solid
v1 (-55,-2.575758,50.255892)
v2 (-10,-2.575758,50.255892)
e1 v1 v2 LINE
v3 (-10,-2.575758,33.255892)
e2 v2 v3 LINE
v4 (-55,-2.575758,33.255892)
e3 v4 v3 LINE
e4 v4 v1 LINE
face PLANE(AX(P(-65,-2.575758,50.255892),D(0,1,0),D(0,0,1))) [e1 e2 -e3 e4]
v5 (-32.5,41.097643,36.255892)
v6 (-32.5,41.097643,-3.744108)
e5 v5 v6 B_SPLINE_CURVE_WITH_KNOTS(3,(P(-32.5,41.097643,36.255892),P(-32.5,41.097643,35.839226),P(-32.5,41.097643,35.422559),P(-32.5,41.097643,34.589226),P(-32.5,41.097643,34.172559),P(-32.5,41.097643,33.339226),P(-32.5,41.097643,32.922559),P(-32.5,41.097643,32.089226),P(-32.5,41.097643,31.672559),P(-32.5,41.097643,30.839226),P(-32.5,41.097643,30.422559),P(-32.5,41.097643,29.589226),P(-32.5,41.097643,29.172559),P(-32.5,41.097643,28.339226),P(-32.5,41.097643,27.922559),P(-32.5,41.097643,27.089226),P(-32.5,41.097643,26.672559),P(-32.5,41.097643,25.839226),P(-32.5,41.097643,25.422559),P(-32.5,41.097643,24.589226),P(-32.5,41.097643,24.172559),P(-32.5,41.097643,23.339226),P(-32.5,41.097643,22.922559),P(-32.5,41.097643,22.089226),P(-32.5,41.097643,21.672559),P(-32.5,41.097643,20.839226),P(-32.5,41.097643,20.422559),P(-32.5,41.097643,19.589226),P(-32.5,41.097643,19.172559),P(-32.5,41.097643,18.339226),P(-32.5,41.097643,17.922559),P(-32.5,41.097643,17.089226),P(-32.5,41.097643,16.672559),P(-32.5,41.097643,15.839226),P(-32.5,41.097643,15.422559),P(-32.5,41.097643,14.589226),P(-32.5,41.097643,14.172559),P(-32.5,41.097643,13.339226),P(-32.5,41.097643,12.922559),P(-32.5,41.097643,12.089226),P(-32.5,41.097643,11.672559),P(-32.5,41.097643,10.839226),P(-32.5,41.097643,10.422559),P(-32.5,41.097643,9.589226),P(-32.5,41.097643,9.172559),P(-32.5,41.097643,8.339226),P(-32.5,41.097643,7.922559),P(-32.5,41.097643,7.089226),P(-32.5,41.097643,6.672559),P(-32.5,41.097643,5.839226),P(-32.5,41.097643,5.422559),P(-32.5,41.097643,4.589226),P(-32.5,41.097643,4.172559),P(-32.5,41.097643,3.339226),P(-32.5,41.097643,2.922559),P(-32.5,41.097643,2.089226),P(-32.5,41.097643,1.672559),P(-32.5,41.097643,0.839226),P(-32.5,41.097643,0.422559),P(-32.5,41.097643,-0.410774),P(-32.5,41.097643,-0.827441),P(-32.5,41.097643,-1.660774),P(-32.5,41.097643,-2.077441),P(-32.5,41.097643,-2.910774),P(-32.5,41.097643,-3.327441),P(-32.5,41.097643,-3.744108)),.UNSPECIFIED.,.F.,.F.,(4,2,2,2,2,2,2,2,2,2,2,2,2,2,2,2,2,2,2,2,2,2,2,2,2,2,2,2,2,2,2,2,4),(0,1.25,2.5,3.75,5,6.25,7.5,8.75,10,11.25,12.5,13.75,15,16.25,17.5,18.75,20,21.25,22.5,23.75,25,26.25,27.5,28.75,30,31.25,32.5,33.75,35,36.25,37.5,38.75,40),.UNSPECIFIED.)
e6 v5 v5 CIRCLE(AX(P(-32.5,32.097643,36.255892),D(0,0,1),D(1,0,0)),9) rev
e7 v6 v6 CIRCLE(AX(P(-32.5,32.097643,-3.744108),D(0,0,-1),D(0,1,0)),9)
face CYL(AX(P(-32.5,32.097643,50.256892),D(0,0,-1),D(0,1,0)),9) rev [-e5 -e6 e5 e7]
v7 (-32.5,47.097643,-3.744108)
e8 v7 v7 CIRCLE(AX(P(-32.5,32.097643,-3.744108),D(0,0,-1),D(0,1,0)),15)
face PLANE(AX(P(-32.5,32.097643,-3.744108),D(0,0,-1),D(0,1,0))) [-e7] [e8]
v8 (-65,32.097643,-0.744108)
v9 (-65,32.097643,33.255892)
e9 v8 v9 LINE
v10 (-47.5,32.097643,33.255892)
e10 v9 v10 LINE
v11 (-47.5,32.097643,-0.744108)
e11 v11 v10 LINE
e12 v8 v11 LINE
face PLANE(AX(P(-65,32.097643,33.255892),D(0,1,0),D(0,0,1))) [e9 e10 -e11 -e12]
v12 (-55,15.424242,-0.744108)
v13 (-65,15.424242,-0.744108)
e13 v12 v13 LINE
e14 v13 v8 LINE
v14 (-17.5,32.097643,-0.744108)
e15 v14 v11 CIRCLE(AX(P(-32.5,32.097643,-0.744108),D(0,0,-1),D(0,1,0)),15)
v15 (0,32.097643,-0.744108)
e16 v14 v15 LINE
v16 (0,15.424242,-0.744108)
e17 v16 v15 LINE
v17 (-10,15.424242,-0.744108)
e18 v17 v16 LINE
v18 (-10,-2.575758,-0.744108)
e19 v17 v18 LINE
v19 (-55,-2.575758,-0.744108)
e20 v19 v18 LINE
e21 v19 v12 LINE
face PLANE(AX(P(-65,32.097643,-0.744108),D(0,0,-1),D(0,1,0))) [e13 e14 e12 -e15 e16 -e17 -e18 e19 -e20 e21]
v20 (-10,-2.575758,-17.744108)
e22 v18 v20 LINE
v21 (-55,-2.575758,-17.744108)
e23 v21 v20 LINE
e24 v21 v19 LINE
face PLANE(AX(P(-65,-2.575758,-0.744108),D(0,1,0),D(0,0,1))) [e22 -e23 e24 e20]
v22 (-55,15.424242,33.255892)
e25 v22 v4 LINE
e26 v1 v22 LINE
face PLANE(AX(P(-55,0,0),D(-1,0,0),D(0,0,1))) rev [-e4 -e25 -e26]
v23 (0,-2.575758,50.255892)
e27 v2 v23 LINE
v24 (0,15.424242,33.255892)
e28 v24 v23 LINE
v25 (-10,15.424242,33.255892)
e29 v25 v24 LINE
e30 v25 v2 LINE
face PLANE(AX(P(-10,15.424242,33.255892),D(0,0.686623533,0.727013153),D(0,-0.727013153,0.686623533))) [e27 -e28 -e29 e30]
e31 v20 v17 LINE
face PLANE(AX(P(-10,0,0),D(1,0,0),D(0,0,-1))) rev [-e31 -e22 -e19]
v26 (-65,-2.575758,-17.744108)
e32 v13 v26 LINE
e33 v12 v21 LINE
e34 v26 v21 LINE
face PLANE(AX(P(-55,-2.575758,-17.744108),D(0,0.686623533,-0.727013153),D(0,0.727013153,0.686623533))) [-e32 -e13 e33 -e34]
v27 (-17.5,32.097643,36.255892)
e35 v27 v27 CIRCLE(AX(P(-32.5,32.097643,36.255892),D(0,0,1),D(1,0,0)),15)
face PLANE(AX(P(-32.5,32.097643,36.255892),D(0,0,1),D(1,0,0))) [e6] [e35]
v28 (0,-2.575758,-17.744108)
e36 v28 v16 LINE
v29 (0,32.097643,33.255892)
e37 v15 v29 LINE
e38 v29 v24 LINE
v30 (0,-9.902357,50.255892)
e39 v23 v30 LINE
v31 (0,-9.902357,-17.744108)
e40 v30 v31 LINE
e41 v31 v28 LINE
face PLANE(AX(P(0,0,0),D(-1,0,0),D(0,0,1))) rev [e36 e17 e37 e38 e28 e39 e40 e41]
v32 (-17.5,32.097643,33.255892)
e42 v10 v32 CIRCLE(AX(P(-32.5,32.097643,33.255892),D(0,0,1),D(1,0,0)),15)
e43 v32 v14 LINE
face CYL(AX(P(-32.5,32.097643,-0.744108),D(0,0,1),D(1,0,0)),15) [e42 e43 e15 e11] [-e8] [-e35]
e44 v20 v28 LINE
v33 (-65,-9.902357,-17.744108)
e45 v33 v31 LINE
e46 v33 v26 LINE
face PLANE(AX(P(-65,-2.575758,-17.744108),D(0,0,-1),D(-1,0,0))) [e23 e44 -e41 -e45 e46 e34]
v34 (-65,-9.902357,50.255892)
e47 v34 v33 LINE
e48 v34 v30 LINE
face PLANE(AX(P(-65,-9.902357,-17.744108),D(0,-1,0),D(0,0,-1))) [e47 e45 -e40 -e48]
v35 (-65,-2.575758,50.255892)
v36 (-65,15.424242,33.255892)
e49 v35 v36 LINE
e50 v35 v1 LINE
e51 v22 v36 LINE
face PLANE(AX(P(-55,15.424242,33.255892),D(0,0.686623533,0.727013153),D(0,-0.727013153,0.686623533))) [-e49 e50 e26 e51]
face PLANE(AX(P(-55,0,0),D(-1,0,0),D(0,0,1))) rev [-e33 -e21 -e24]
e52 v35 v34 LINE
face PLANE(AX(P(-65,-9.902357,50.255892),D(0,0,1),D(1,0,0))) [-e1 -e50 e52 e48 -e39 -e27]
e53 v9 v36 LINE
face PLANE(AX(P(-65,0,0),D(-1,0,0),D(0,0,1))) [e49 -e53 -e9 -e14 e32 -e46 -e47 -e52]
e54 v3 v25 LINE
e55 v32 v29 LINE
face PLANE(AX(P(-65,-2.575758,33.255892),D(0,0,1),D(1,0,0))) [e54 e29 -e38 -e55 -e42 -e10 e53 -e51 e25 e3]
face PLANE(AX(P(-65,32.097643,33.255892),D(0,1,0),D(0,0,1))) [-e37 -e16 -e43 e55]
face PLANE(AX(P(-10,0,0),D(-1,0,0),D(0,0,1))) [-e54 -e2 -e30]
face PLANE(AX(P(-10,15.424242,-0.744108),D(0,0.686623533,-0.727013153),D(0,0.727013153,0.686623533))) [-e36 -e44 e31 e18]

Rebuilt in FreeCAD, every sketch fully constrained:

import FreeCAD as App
import Part
import Sketcher
from FreeCAD import Vector

doc = App.newDocument("Part")
params = doc.addObject("Spreadsheet::Sheet", "Params")
for row, (alias, value) in enumerate([
    ("sketch1_height", "68 mm"),
    ("sketch1_height2", "17 mm"),
    ("pad1_length", "65 mm"),
    ("sketch2_width", "18 mm"),
    ("sketch2_height", "17 mm"),
    ("pad2_length", "10 mm"),
    ("sketch3_width", "18 mm"),
    ("sketch3_height", "17 mm"),
    ("pad3_length", "10 mm"),
    ("sketch4_width", "18 mm"),
    ("sketch4_height", "17 mm"),
    ("pad4_length", "10 mm"),
    ("sketch5_width", "18 mm"),
    ("sketch5_height", "17 mm"),
    ("pad5_length", "10 mm"),
    ("sketch6_diameter", "30 mm"),
    ("pad6_length", "34 mm"),
    ("sketch7_diameter", "30 mm"),
    ("pad7_length", "3 mm"),
    ("sketch8_diameter", "30 mm"),
    ("pad8_length", "3 mm"),
    ("sketch9_diameter", "18 mm"),
], start=1):
    params.set(f"A{row}", alias)
    params.set(f"B{row}", "=" + value)
    params.setAlias(f"B{row}", alias)

body = doc.addObject("PartDesign::Body", "Body")

# Sketch on YZ plane
sketch1 = doc.addObject("Sketcher::SketchObject", "Sketch")
body.addObject(sketch1)
sketch1.AttachmentSupport = (doc.YZ_Plane, [""])
sketch1.MapMode = "FlatFace"
sketch1.addGeometry(Part.LineSegment(Vector(-3, 50, 0), Vector(-10, 50, 0)), False)
sketch1.addGeometry(Part.LineSegment(Vector(-10, 50, 0), Vector(-10, -18, 0)), False)
sketch1.addGeometry(Part.LineSegment(Vector(-10, -18, 0), Vector(-3, -18, 0)), False)
sketch1.addGeometry(Part.LineSegment(Vector(-3, -18, 0), Vector(-3, -1, 0)), False)
sketch1.addGeometry(Part.LineSegment(Vector(-3, -1, 0), Vector(32, -1, 0)), False)
sketch1.addGeometry(Part.LineSegment(Vector(32, -1, 0), Vector(32, 33, 0)), False)
sketch1.addGeometry(Part.LineSegment(Vector(32, 33, 0), Vector(-3, 33, 0)), False)
sketch1.addGeometry(Part.LineSegment(Vector(-3, 33, 0), Vector(-3, 50, 0)), False)
sketch1.addConstraint(Sketcher.Constraint("Coincident", 0, 2, 1, 1))
sketch1.addConstraint(Sketcher.Constraint("Coincident", 1, 2, 2, 1))
sketch1.addConstraint(Sketcher.Constraint("Coincident", 2, 2, 3, 1))
sketch1.addConstraint(Sketcher.Constraint("Coincident", 3, 2, 4, 1))
sketch1.addConstraint(Sketcher.Constraint("Coincident", 4, 2, 5, 1))
sketch1.addConstraint(Sketcher.Constraint("Coincident", 5, 2, 6, 1))
sketch1.addConstraint(Sketcher.Constraint("Coincident", 6, 2, 7, 1))
sketch1.addConstraint(Sketcher.Constraint("Coincident", 7, 2, 0, 1))
sketch1.addConstraint(Sketcher.Constraint("Horizontal", 0))
sketch1.addConstraint(Sketcher.Constraint("Vertical", 1))
sketch1.addConstraint(Sketcher.Constraint("Horizontal", 2))
sketch1.addConstraint(Sketcher.Constraint("Vertical", 3))
sketch1.addConstraint(Sketcher.Constraint("Horizontal", 4))
sketch1.addConstraint(Sketcher.Constraint("Vertical", 5))
sketch1.addConstraint(Sketcher.Constraint("Horizontal", 6))
sketch1.addConstraint(Sketcher.Constraint("Vertical", 7))
sketch1.addConstraint(Sketcher.Constraint("Vertical", 3, 2, 6, 2))
sketch1.addConstraint(Sketcher.Constraint("Equal", 3, 7))
sketch1.addConstraint(Sketcher.Constraint("DistanceY", 1, 2, 1, 1, 68.0))
sketch1.addConstraint(Sketcher.Constraint("DistanceY", 3, 1, 3, 2, 17.0))
sketch1.addConstraint(Sketcher.Constraint("DistanceX", 1, 2, 4, 2, 42.0))
sketch1.addConstraint(Sketcher.Constraint("DistanceX", 0, 2, 0, 1, 7.326599))
sketch1.addConstraint(Sketcher.Constraint("DistanceX", 0, 2, -1, 1, 9.902357))
sketch1.addConstraint(Sketcher.Constraint("DistanceY", -1, 1, 0, 2, 50.255892))
sketch1.setExpression("Constraints[18]", "Params.sketch1_height")
sketch1.setExpression("Constraints[19]", "Params.sketch1_height2")
pad1 = doc.addObject("PartDesign::Pad", "Pad")
body.addObject(pad1)
pad1.Profile = sketch1
pad1.setExpression("Length", "Params.pad1_length")
pad1.Reversed = True

# Sketch on YZ plane
sketch2 = doc.addObject("Sketcher::SketchObject", "Sketch001")
body.addObject(sketch2)
sketch2.AttachmentSupport = (doc.YZ_Plane, [""])
sketch2.MapMode = "FlatFace"
sketch2.addGeometry(Part.LineSegment(Vector(15, 33, 0), Vector(-3, 50, 0)), False)
sketch2.addGeometry(Part.LineSegment(Vector(-3, 50, 0), Vector(-3, 33, 0)), False)
sketch2.addGeometry(Part.LineSegment(Vector(-3, 33, 0), Vector(15, 33, 0)), False)
sketch2.addConstraint(Sketcher.Constraint("Coincident", 0, 2, 1, 1))
sketch2.addConstraint(Sketcher.Constraint("Coincident", 1, 2, 2, 1))
sketch2.addConstraint(Sketcher.Constraint("Coincident", 2, 2, 0, 1))
sketch2.addConstraint(Sketcher.Constraint("Vertical", 1))
sketch2.addConstraint(Sketcher.Constraint("Horizontal", 2))
sketch2.addConstraint(Sketcher.Constraint("DistanceX", 2, 1, 2, 2, 18.0))
sketch2.addConstraint(Sketcher.Constraint("DistanceY", 1, 2, 1, 1, 17.0))
sketch2.addConstraint(Sketcher.Constraint("DistanceX", 0, 2, -1, 1, 2.575758))
sketch2.addConstraint(Sketcher.Constraint("DistanceY", -1, 1, 0, 2, 50.255892))
sketch2.setExpression("Constraints[5]", "Params.sketch2_width")
sketch2.setExpression("Constraints[6]", "Params.sketch2_height")
pad2 = doc.addObject("PartDesign::Pad", "Pad001")
body.addObject(pad2)
pad2.Profile = sketch2
pad2.setExpression("Length", "Params.pad2_length")
pad2.Reversed = True

# Sketch on YZ plane
sketch3 = doc.addObject("Sketcher::SketchObject", "Sketch002")
body.addObject(sketch3)
sketch3.AttachmentSupport = (doc.YZ_Plane, [""])
sketch3.MapMode = "FlatFace"
sketch3.AttachmentOffset = App.Placement(Vector(0, 0, -65), App.Rotation())
sketch3.addGeometry(Part.LineSegment(Vector(-3, 50, 0), Vector(15, 33, 0)), False)
sketch3.addGeometry(Part.LineSegment(Vector(15, 33, 0), Vector(-3, 33, 0)), False)
sketch3.addGeometry(Part.LineSegment(Vector(-3, 33, 0), Vector(-3, 50, 0)), False)
sketch3.addConstraint(Sketcher.Constraint("Coincident", 0, 2, 1, 1))
sketch3.addConstraint(Sketcher.Constraint("Coincident", 1, 2, 2, 1))
sketch3.addConstraint(Sketcher.Constraint("Coincident", 2, 2, 0, 1))
sketch3.addConstraint(Sketcher.Constraint("Horizontal", 1))
sketch3.addConstraint(Sketcher.Constraint("Vertical", 2))
sketch3.addConstraint(Sketcher.Constraint("DistanceX", 1, 2, 1, 1, 18.0))
sketch3.addConstraint(Sketcher.Constraint("DistanceY", 2, 1, 2, 2, 17.0))
sketch3.addConstraint(Sketcher.Constraint("DistanceX", -1, 1, 0, 2, 15.424242))
sketch3.addConstraint(Sketcher.Constraint("DistanceY", -1, 1, 0, 2, 33.255892))
sketch3.setExpression("Constraints[5]", "Params.sketch3_width")
sketch3.setExpression("Constraints[6]", "Params.sketch3_height")
pad3 = doc.addObject("PartDesign::Pad", "Pad002")
body.addObject(pad3)
pad3.Profile = sketch3
pad3.setExpression("Length", "Params.pad3_length")

# Sketch on YZ plane
sketch4 = doc.addObject("Sketcher::SketchObject", "Sketch003")
body.addObject(sketch4)
sketch4.AttachmentSupport = (doc.YZ_Plane, [""])
sketch4.MapMode = "FlatFace"
sketch4.AttachmentOffset = App.Placement(Vector(0, 0, -65), App.Rotation())
sketch4.addGeometry(Part.LineSegment(Vector(15, -1, 0), Vector(-3, -18, 0)), False)
sketch4.addGeometry(Part.LineSegment(Vector(-3, -18, 0), Vector(-3, -1, 0)), False)
sketch4.addGeometry(Part.LineSegment(Vector(-3, -1, 0), Vector(15, -1, 0)), False)
sketch4.addConstraint(Sketcher.Constraint("Coincident", 0, 2, 1, 1))
sketch4.addConstraint(Sketcher.Constraint("Coincident", 1, 2, 2, 1))
sketch4.addConstraint(Sketcher.Constraint("Coincident", 2, 2, 0, 1))
sketch4.addConstraint(Sketcher.Constraint("Vertical", 1))
sketch4.addConstraint(Sketcher.Constraint("Horizontal", 2))
sketch4.addConstraint(Sketcher.Constraint("DistanceX", 2, 1, 2, 2, 18.0))
sketch4.addConstraint(Sketcher.Constraint("DistanceY", 1, 1, 1, 2, 17.0))
sketch4.addConstraint(Sketcher.Constraint("DistanceX", 0, 2, -1, 1, 2.575758))
sketch4.addConstraint(Sketcher.Constraint("DistanceY", 0, 2, -1, 1, 17.744108))
sketch4.setExpression("Constraints[5]", "Params.sketch4_width")
sketch4.setExpression("Constraints[6]", "Params.sketch4_height")
pad4 = doc.addObject("PartDesign::Pad", "Pad003")
body.addObject(pad4)
pad4.Profile = sketch4
pad4.setExpression("Length", "Params.pad4_length")

# Sketch on YZ plane
sketch5 = doc.addObject("Sketcher::SketchObject", "Sketch004")
body.addObject(sketch5)
sketch5.AttachmentSupport = (doc.YZ_Plane, [""])
sketch5.MapMode = "FlatFace"
sketch5.addGeometry(Part.LineSegment(Vector(-3, -18, 0), Vector(15, -1, 0)), False)
sketch5.addGeometry(Part.LineSegment(Vector(15, -1, 0), Vector(-3, -1, 0)), False)
sketch5.addGeometry(Part.LineSegment(Vector(-3, -1, 0), Vector(-3, -18, 0)), False)
sketch5.addConstraint(Sketcher.Constraint("Coincident", 0, 2, 1, 1))
sketch5.addConstraint(Sketcher.Constraint("Coincident", 1, 2, 2, 1))
sketch5.addConstraint(Sketcher.Constraint("Coincident", 2, 2, 0, 1))
sketch5.addConstraint(Sketcher.Constraint("Horizontal", 1))
sketch5.addConstraint(Sketcher.Constraint("Vertical", 2))
sketch5.addConstraint(Sketcher.Constraint("DistanceX", 1, 2, 1, 1, 18.0))
sketch5.addConstraint(Sketcher.Constraint("DistanceY", 2, 2, 2, 1, 17.0))
sketch5.addConstraint(Sketcher.Constraint("DistanceX", -1, 1, 0, 2, 15.424242))
sketch5.addConstraint(Sketcher.Constraint("DistanceY", 0, 2, -1, 1, 0.744108))
sketch5.setExpression("Constraints[5]", "Params.sketch5_width")
sketch5.setExpression("Constraints[6]", "Params.sketch5_height")
pad5 = doc.addObject("PartDesign::Pad", "Pad004")
body.addObject(pad5)
pad5.Profile = sketch5
pad5.setExpression("Length", "Params.pad5_length")
pad5.Reversed = True

# Sketch on XY plane
sketch6 = doc.addObject("Sketcher::SketchObject", "Sketch005")
body.addObject(sketch6)
sketch6.AttachmentSupport = (doc.XY_Plane, [""])
sketch6.MapMode = "FlatFace"
sketch6.AttachmentOffset = App.Placement(Vector(0, 0, 33.255892), App.Rotation())
sketch6.addGeometry(Part.Circle(Vector(-32, 32, 0), Vector(0, 0, 1), 15), False)
sketch6.addConstraint(Sketcher.Constraint("Diameter", 0, 30.0))
sketch6.addConstraint(Sketcher.Constraint("DistanceX", 0, 3, -1, 1, 32.5))
sketch6.addConstraint(Sketcher.Constraint("DistanceY", -1, 1, 0, 3, 32.097643))
sketch6.setExpression("Constraints[0]", "Params.sketch6_diameter")
pad6 = doc.addObject("PartDesign::Pad", "Pad005")
body.addObject(pad6)
pad6.Profile = sketch6
pad6.setExpression("Length", "Params.pad6_length")
pad6.Reversed = True

# Sketch on XY plane
sketch7 = doc.addObject("Sketcher::SketchObject", "Sketch006")
body.addObject(sketch7)
sketch7.AttachmentSupport = (doc.XY_Plane, [""])
sketch7.MapMode = "FlatFace"
sketch7.AttachmentOffset = App.Placement(Vector(0, 0, 36.255892), App.Rotation())
sketch7.addGeometry(Part.Circle(Vector(-32, 32, 0), Vector(0, 0, 1), 15), False)
sketch7.addConstraint(Sketcher.Constraint("Diameter", 0, 30.0))
sketch7.addConstraint(Sketcher.Constraint("DistanceX", 0, 3, -1, 1, 32.5))
sketch7.addConstraint(Sketcher.Constraint("DistanceY", -1, 1, 0, 3, 32.097643))
sketch7.setExpression("Constraints[0]", "Params.sketch7_diameter")
pad7 = doc.addObject("PartDesign::Pad", "Pad006")
body.addObject(pad7)
pad7.Profile = sketch7
pad7.setExpression("Length", "Params.pad7_length")
pad7.Reversed = True

# Sketch on XY plane
sketch8 = doc.addObject("Sketcher::SketchObject", "Sketch007")
body.addObject(sketch8)
sketch8.AttachmentSupport = (doc.XY_Plane, [""])
sketch8.MapMode = "FlatFace"
sketch8.AttachmentOffset = App.Placement(Vector(0, 0, -0.744108), App.Rotation())
sketch8.addGeometry(Part.Circle(Vector(-32, 32, 0), Vector(0, 0, 1), 15), False)
sketch8.addConstraint(Sketcher.Constraint("Diameter", 0, 30.0))
sketch8.addConstraint(Sketcher.Constraint("DistanceX", 0, 3, -1, 1, 32.5))
sketch8.addConstraint(Sketcher.Constraint("DistanceY", -1, 1, 0, 3, 32.097643))
sketch8.setExpression("Constraints[0]", "Params.sketch8_diameter")
pad8 = doc.addObject("PartDesign::Pad", "Pad007")
body.addObject(pad8)
pad8.Profile = sketch8
pad8.setExpression("Length", "Params.pad8_length")
pad8.Reversed = True

# Sketch on XY plane
sketch9 = doc.addObject("Sketcher::SketchObject", "Sketch008")
body.addObject(sketch9)
sketch9.AttachmentSupport = (doc.XY_Plane, [""])
sketch9.MapMode = "FlatFace"
sketch9.AttachmentOffset = App.Placement(Vector(0, 0, -3.744108), App.Rotation())
sketch9.addGeometry(Part.Circle(Vector(-32, 32, 0), Vector(0, 0, 1), 9), False)
sketch9.addConstraint(Sketcher.Constraint("Diameter", 0, 18.0))
sketch9.addConstraint(Sketcher.Constraint("DistanceX", 0, 3, -1, 1, 32.5))
sketch9.addConstraint(Sketcher.Constraint("DistanceY", -1, 1, 0, 3, 32.097643))
sketch9.setExpression("Constraints[0]", "Params.sketch9_diameter")
pocket1 = doc.addObject("PartDesign::Pocket", "Pocket")
body.addObject(pocket1)
pocket1.Profile = sketch9
pocket1.Type = "UpToFirst"
pocket1.Reversed = True

doc.recompute()
